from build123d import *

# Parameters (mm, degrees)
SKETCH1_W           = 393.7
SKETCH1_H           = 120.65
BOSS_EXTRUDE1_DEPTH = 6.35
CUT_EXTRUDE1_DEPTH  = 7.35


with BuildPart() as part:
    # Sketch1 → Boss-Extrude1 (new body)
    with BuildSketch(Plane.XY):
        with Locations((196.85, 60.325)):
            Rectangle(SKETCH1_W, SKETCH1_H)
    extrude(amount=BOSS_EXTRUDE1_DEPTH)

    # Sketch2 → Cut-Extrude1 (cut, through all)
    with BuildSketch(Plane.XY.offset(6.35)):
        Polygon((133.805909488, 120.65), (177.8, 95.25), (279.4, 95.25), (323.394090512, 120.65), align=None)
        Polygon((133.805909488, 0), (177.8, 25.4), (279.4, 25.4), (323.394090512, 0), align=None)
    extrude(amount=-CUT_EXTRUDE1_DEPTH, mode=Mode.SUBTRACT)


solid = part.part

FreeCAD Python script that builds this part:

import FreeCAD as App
import Part
import Sketcher

V = App.Vector
Q = App.Units.Quantity


def add_polygon(sketch, points):
    """Adds a closed chain of lines whose ends are joined by coincident constraints."""
    first, n = sketch.GeometryCount, len(points)
    for a, b in zip(points, points[1:] + points[:1]):
        sketch.addGeometry(Part.LineSegment(App.Vector(*a, 0), App.Vector(*b, 0)), False)
    for i in range(n):
        sketch.addConstraint(Sketcher.Constraint("Coincident", first + i, 2, first + (i + 1) % n, 1))

doc = App.newDocument("Part")
params = doc.addObject("Spreadsheet::Sheet", "Params")
for row, (alias, value) in enumerate([
    ("sketch1_width", "15.5 in"),
    ("sketch1_height", "4.75 in"),
    ("pad1_length", "0.25 in"),
    ("sketch2_width", "4 in"),
    ("sketch2_length", "2 in"),
], start=1):
    params.set(f"A{row}", alias)
    params.set(f"B{row}", "=" + value)
    params.setAlias(f"B{row}", alias)

body = doc.addObject("PartDesign::Body", "Body")

sketch1 = body.newObject("Sketcher::SketchObject", "Sketch")
sketch1.AttachmentSupport = (doc.getObject("XY_Plane"), [""])
sketch1.MapMode = "FlatFace"
add_polygon(sketch1, [(0, 121), (0, 0), (394, 0), (394, 121)])
sketch1.addConstraint([
    Sketcher.Constraint("Vertical", 0),
    Sketcher.Constraint("Horizontal", 1),
    Sketcher.Constraint("Vertical", 2),
    Sketcher.Constraint("Horizontal", 3),
    Sketcher.Constraint("Coincident", 0, 2, -1, 1),
    Sketcher.Constraint("DistanceX", 1, 1, 1, 2, Q("15.5 in")),
    Sketcher.Constraint("DistanceY", 0, 2, 0, 1, Q("4.75 in")),
])
sketch1.setExpression("Constraints[9]", "Params.sketch1_width")
sketch1.setExpression("Constraints[10]", "Params.sketch1_height")
pad1 = body.newObject("PartDesign::Pad", "Pad")
pad1.Profile = sketch1
pad1.setExpression("Length", "Params.pad1_length")

sketch2 = body.newObject("Sketcher::SketchObject", "Sketch001")
sketch2.AttachmentSupport = (doc.getObject("XY_Plane"), [""])
sketch2.MapMode = "FlatFace"
sketch2.AttachmentOffset = App.Placement(V(0, 0, 0.25 * 25.4), App.Rotation())
add_polygon(sketch2, [(134, 121), (178, 95), (279, 95), (323, 121)])
add_polygon(sketch2, [(178, 25), (134, 0), (323, 0), (279, 25)])
sketch2.addConstraint([
    Sketcher.Constraint("Horizontal", 1),
    Sketcher.Constraint("Horizontal", 3),
    Sketcher.Constraint("Horizontal", 5),
    Sketcher.Constraint("Horizontal", 7),
    Sketcher.Constraint("PointOnObject", 4, 2, -1),
    Sketcher.Constraint("Parallel", 2, 4),
    Sketcher.Constraint("Parallel", 0, 6),
    Sketcher.Constraint("Vertical", 3, 2, 4, 2),
    Sketcher.Constraint("Vertical", 2, 2, 5, 2),
    Sketcher.Constraint("Vertical", 1, 2, 6, 2),
    Sketcher.Constraint("Vertical", 0, 2, 7, 2),
    Sketcher.Constraint("DistanceX", 1, 1, 1, 2, Q("4 in")),
    Sketcher.Constraint("Distance", 0, Q("2 in")),
    Sketcher.Constraint("DistanceX", -1, 1, 0, 2, Q("7 in")),
    Sketcher.Constraint("DistanceY", -1, 1, 6, 2, Q("1 in")),
    Sketcher.Constraint("DistanceY", -1, 1, 0, 2, Q("3.75 in")),
])
sketch2.setExpression("Constraints[19]", "Params.sketch2_width")
sketch2.setExpression("Constraints[20]", "Params.sketch2_length")
pocket1 = body.newObject("PartDesign::Pocket", "Pocket")
pocket1.Profile = sketch2
pocket1.Type = "ThroughAll"

doc.recompute()
